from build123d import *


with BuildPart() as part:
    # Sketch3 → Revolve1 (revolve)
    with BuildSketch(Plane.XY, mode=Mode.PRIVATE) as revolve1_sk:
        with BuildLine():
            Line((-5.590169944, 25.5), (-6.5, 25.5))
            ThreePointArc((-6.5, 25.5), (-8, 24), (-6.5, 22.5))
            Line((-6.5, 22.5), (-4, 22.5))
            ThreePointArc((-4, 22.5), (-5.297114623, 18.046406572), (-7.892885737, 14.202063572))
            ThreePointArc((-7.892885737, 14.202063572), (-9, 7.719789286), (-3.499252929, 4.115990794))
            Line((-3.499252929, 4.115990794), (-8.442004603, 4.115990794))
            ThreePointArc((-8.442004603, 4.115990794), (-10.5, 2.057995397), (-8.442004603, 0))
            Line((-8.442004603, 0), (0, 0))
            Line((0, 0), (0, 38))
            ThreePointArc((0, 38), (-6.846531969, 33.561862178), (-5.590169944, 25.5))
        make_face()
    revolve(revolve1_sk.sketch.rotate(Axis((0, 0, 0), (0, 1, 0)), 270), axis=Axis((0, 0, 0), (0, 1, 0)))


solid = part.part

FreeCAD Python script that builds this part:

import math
import FreeCAD as App
import Part
import Sketcher

V = App.Vector

doc = App.newDocument("Part")
body = doc.addObject("PartDesign::Body", "Body")

# Sketch on XY plane
sketch1 = body.newObject("Sketcher::SketchObject", "Sketch")
sketch1.AttachmentSupport = (doc.getObject("XY_Plane"), [""])
sketch1.MapMode = "FlatFace"
sketch1.addGeometry([
    Part.LineSegment(V(-5.59017, 25.5, 0), V(-6.5, 25.5, 0)),  # 0
    Part.ArcOfCircle(Part.Circle(V(-6.5, 24, 0), V(0, 0, 1), 1.5), math.radians(90), math.radians(270)),  # 1
    Part.LineSegment(V(-6.5, 22.5, 0), V(-4, 22.5, 0)),  # 2
    Part.ArcOfCircle(Part.Circle(V(-18.876968, 24.417246, 0), V(0, 0, 1), 15), math.radians(-42.922785), math.radians(-7.343427)),  # 3
    Part.ArcOfCircle(Part.Circle(V(-3.499253, 10.115991, 0), V(0, 0, 1), 6), math.radians(137.077215), math.radians(270)),  # 4
    Part.LineSegment(V(-3.499253, 4.115991, 0), V(-8.442005, 4.115991, 0)),  # 5
    Part.ArcOfCircle(Part.Circle(V(-8.442005, 2.057995, 0), V(0, 0, 1), 2.057995), math.radians(90), math.radians(270)),  # 6
    Part.LineSegment(V(-8.442005, 0, 0), V(0, 0, 0)),  # 7
    Part.LineSegment(V(0, 0, 0), V(0, 38, 0)),  # 8
    Part.ArcOfCircle(Part.Circle(V(0, 30.5, 0), V(0, 0, 1), 7.5), math.radians(90), math.radians(221.810315)),  # 9
], False)
sketch1.addConstraint([
    Sketcher.Constraint("Tangent", 0, 2, 1, 1),
    Sketcher.Constraint("Tangent", 1, 2, 2, 1),
    Sketcher.Constraint("Coincident", 2, 2, 3, 2),
    Sketcher.Constraint("Tangent", 3, 1, 4, 1),
    Sketcher.Constraint("Tangent", 4, 2, 5, 1),
    Sketcher.Constraint("Tangent", 5, 2, 6, 1),
    Sketcher.Constraint("Tangent", 6, 2, 7, 1),
    Sketcher.Constraint("Coincident", 7, 2, 8, 1),
    Sketcher.Constraint("Coincident", 8, 2, 9, 1),
    Sketcher.Constraint("Coincident", 9, 2, 0, 1),
    Sketcher.Constraint("Horizontal", 0),
    Sketcher.Constraint("Horizontal", 2),
    Sketcher.Constraint("Horizontal", 5),
    Sketcher.Constraint("Horizontal", 7),
    Sketcher.Constraint("Vertical", 8),
    Sketcher.Constraint("Coincident", 7, 2, -1, 1),
    Sketcher.Constraint("PointOnObject", 9, 3, -2),
    Sketcher.Constraint("Radius", 3, 15.0),
    Sketcher.Constraint("Radius", 4, 6.0),
    Sketcher.Constraint("Radius", 1, 1.5),
    Sketcher.Constraint("Radius", 9, 7.5),
    Sketcher.Constraint("DistanceY", 8, 1, 8, 2, 38.0),
    Sketcher.Constraint("DistanceX", 2, 1, 2, 2, 2.5),
    Sketcher.Constraint("DistanceY", -1, 1, 1, 3, 24.0),
    Sketcher.Constraint("DistanceX", 2, 2, -1, 1, 4.0),
    Sketcher.Constraint("Radius", 6, 2.057995),
    Sketcher.Constraint("DistanceX", 5, 2, 5, 1, 4.942752),
    Sketcher.Constraint("DistanceX", 7, 1, 7, 2, 8.442005),
])
revolution = body.newObject("PartDesign::Revolution", "Revolution")
revolution.Profile = sketch1
revolution.ReferenceAxis = (sketch1, ["V_Axis"])
revolution.Angle = 360

doc.recompute()
